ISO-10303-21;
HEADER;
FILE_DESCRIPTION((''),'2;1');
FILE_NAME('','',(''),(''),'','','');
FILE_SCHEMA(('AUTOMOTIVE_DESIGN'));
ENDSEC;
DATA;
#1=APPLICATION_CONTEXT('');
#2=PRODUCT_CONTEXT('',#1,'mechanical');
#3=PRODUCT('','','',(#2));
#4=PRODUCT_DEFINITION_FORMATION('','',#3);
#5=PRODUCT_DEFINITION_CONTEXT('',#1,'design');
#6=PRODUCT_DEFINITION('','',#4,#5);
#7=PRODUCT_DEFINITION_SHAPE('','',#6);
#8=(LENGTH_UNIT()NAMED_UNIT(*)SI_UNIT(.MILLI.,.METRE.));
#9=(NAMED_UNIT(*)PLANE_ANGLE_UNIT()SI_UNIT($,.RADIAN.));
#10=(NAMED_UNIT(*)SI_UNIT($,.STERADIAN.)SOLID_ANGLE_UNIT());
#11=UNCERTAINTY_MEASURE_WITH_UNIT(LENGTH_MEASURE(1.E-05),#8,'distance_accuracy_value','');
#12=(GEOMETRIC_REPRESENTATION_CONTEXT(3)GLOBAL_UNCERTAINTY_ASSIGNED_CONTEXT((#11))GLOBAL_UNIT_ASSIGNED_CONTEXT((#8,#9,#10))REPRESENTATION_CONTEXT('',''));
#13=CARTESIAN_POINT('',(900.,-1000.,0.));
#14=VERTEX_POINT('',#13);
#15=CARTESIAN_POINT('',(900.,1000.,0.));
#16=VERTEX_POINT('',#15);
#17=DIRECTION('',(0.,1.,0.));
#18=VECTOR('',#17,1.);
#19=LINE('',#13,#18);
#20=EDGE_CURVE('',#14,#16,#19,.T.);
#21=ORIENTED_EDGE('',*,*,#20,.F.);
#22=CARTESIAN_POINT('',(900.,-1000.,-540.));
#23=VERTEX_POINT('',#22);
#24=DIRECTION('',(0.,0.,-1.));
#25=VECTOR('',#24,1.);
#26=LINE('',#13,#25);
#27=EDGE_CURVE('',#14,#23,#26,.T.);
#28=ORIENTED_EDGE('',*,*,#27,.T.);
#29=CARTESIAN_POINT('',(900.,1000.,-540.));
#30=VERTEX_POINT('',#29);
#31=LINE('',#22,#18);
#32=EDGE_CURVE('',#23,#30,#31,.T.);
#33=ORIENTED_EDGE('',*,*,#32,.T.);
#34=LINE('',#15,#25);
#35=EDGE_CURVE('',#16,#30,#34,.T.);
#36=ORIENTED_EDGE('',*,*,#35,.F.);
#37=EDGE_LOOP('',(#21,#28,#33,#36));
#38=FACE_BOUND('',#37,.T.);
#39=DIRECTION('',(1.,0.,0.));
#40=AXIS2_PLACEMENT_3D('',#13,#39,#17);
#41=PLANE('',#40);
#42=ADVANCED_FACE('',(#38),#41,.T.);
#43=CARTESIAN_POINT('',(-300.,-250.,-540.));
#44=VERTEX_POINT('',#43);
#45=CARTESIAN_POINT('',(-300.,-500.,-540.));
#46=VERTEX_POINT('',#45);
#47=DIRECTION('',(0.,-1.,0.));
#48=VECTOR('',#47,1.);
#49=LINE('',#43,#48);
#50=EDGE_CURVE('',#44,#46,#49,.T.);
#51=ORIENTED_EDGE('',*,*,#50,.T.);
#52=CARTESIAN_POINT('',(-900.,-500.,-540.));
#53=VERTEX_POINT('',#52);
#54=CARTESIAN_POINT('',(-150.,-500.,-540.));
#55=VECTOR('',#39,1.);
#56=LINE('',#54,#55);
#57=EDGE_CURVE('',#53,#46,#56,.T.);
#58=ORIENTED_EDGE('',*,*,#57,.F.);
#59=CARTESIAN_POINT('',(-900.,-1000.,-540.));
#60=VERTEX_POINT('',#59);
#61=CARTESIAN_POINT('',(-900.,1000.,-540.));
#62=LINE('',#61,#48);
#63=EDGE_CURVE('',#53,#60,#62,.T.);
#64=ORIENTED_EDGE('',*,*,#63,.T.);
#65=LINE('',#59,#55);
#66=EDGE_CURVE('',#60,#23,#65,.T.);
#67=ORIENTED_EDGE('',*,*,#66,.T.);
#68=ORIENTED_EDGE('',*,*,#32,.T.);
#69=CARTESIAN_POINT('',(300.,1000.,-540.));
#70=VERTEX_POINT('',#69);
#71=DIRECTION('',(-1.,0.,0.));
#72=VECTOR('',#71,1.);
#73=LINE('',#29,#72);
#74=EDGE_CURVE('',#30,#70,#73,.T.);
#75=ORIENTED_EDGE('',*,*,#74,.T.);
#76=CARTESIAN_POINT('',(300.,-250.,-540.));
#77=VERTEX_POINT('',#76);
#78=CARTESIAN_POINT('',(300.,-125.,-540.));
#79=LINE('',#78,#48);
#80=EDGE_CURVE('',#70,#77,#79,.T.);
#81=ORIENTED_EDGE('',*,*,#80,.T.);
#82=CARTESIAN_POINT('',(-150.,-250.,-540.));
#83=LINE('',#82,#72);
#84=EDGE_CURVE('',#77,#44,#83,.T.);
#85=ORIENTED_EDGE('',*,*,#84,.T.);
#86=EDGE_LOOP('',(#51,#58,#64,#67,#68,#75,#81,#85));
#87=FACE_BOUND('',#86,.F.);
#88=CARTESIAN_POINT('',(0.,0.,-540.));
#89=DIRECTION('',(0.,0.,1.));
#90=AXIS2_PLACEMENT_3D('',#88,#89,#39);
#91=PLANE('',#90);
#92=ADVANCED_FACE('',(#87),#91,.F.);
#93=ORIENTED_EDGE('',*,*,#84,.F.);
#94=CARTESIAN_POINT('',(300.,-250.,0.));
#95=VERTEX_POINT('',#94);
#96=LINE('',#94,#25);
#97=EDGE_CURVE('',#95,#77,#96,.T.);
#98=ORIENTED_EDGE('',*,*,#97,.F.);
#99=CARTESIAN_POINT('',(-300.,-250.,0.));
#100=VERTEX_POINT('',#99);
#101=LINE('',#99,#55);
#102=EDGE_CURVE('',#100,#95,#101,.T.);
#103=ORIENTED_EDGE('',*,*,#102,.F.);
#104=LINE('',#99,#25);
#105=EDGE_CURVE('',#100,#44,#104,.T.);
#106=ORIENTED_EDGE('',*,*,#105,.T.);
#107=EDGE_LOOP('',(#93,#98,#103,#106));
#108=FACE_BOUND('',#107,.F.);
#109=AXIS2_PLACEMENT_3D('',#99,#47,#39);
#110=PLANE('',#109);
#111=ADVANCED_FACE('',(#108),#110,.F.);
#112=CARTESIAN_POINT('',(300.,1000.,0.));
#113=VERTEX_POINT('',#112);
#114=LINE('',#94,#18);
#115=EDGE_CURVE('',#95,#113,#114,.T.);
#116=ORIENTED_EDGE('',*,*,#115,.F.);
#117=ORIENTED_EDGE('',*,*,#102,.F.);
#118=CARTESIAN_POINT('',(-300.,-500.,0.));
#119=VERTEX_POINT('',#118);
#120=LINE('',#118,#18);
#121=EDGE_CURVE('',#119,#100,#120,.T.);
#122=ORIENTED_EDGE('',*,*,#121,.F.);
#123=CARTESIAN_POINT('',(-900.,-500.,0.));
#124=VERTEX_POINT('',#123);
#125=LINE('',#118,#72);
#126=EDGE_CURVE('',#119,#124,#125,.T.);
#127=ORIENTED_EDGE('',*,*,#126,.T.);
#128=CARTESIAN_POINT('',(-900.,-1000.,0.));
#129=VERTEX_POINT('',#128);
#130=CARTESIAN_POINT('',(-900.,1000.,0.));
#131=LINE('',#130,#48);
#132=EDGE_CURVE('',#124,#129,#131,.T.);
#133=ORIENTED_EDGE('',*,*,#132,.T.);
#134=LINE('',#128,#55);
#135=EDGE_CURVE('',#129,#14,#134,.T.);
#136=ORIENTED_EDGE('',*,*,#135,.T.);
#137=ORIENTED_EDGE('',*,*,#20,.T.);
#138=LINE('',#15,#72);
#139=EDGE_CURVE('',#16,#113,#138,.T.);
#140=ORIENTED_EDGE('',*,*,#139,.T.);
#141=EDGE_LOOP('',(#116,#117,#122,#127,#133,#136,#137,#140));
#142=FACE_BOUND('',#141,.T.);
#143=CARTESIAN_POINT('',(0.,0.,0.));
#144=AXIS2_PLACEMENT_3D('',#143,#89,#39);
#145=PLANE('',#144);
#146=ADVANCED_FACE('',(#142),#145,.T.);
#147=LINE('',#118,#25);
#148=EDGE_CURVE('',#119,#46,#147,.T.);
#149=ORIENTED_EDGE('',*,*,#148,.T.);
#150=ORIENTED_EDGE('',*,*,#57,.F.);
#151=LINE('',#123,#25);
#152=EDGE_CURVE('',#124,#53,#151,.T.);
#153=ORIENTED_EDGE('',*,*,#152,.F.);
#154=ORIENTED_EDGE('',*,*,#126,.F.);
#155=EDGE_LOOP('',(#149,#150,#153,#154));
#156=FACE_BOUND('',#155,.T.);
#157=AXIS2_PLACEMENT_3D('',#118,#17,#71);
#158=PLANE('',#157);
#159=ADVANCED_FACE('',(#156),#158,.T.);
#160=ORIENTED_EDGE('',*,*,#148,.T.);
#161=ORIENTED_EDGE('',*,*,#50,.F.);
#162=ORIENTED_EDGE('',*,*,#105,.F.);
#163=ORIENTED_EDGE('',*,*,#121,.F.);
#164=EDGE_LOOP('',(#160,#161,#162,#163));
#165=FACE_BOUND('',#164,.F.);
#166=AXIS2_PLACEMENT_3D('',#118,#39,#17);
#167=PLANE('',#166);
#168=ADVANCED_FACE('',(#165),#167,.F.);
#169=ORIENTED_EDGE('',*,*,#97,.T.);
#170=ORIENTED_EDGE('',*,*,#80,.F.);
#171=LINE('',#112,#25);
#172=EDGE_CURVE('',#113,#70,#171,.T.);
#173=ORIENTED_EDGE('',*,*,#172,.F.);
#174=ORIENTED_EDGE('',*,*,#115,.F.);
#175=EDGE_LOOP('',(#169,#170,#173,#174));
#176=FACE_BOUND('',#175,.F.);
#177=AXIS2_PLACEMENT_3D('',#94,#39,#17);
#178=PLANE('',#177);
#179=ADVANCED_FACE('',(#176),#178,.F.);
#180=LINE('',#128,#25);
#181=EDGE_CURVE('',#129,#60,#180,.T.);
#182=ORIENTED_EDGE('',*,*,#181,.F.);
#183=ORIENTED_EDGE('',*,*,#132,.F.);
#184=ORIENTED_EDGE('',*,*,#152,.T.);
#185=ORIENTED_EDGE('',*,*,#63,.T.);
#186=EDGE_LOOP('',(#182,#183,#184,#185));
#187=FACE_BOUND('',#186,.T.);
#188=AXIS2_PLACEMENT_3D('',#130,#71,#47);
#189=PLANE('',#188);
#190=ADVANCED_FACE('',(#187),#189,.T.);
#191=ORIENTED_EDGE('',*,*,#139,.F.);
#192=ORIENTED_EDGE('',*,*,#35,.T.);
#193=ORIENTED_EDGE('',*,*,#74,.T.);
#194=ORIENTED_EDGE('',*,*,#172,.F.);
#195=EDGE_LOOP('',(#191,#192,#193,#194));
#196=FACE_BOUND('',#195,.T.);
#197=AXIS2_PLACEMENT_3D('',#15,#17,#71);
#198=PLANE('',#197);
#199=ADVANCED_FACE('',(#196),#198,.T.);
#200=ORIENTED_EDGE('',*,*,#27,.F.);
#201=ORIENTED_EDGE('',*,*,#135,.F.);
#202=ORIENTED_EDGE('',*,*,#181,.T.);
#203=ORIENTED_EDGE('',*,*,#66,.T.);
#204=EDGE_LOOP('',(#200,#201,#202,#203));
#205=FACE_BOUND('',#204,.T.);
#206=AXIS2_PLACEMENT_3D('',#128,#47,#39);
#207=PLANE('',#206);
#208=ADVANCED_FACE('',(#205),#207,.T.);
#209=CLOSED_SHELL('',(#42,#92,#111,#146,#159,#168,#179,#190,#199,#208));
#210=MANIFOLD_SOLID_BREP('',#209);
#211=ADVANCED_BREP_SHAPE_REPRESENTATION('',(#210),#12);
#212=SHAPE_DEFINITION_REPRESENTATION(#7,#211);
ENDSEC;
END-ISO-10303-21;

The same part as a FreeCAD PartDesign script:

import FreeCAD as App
import Part
import Sketcher
from FreeCAD import Vector
Q = App.Units.Quantity

doc = App.newDocument("Part")
body = doc.addObject("PartDesign::Body", "Body")

# Sketch on XY plane
sketch1 = body.newObject("Sketcher::SketchObject", "Sketch")
sketch1.AttachmentSupport = (doc.getObject("XY_Plane"), [""])
sketch1.MapMode = "FlatFace"
sketch1.addGeometry([
    Part.LineSegment(Vector(-900, 1000, 0), Vector(-900, -1000, 0)),
    Part.LineSegment(Vector(-900, -1000, 0), Vector(900, -1000, 0)),
    Part.LineSegment(Vector(900, -1000, 0), Vector(900, 1000, 0)),
    Part.LineSegment(Vector(900, 1000, 0), Vector(-900, 1000, 0)),
], False)
sketch1.addConstraint([
    Sketcher.Constraint("Coincident", 0, 2, 1, 1),
    Sketcher.Constraint("Coincident", 1, 2, 2, 1),
    Sketcher.Constraint("Coincident", 2, 2, 3, 1),
    Sketcher.Constraint("Coincident", 3, 2, 0, 1),
    Sketcher.Constraint("Vertical", 0),
    Sketcher.Constraint("Horizontal", 1),
    Sketcher.Constraint("Vertical", 2),
    Sketcher.Constraint("Horizontal", 3),
    Sketcher.Constraint("Symmetric", 0, 2, 2, 2, -1, 1),
    Sketcher.Constraint("DistanceX", 0, 2, -1, 1, Q("900 mm")),
    Sketcher.Constraint("DistanceY", 0, 2, -1, 1, Q("1000 mm")),
])
pad1 = body.newObject("PartDesign::Pad", "Pad")
pad1.Profile = sketch1
pad1.Length = 540
pad1.Reversed = True

# Sketch on XY plane
sketch2 = body.newObject("Sketcher::SketchObject", "Sketch001")
sketch2.AttachmentSupport = (doc.getObject("XY_Plane"), [""])
sketch2.MapMode = "FlatFace"
sketch2.addGeometry([
    Part.LineSegment(Vector(-900, 1000, 0), Vector(-900, -500, 0)),  # 0
    Part.LineSegment(Vector(-900, -500, 0), Vector(-300, -500, 0)),  # 1
    Part.LineSegment(Vector(-300, -500, 0), Vector(-300, -250, 0)),  # 2
    Part.LineSegment(Vector(-300, -250, 0), Vector(300, -250, 0)),  # 3
    Part.LineSegment(Vector(300, -250, 0), Vector(300, 1000, 0)),  # 4
    Part.LineSegment(Vector(300, 1000, 0), Vector(-900, 1000, 0)),  # 5
], False)
sketch2.addConstraint([
    Sketcher.Constraint("Coincident", 0, 2, 1, 1),
    Sketcher.Constraint("Coincident", 1, 2, 2, 1),
    Sketcher.Constraint("Coincident", 2, 2, 3, 1),
    Sketcher.Constraint("Coincident", 3, 2, 4, 1),
    Sketcher.Constraint("Coincident", 4, 2, 5, 1),
    Sketcher.Constraint("Coincident", 5, 2, 0, 1),
    Sketcher.Constraint("Vertical", 0),
    Sketcher.Constraint("Horizontal", 1),
    Sketcher.Constraint("Vertical", 2),
    Sketcher.Constraint("Horizontal", 3),
    Sketcher.Constraint("Vertical", 4),
    Sketcher.Constraint("Horizontal", 5),
    Sketcher.Constraint("Equal", 1, 3),
    Sketcher.Constraint("DistanceX", 1, 1, 1, 2, Q("600 mm")),
    Sketcher.Constraint("DistanceY", 0, 2, 0, 1, Q("1500 mm")),
    Sketcher.Constraint("DistanceY", 0, 2, -1, 1, Q("500 mm")),
    Sketcher.Constraint("DistanceY", 2, 1, 2, 2, Q("250 mm")),
    Sketcher.Constraint("DistanceX", 0, 2, -1, 1, Q("900 mm")),
])
pocket1 = body.newObject("PartDesign::Pocket", "Pocket")
pocket1.Profile = sketch2
pocket1.Type = "UpToFirst"

doc.recompute()
